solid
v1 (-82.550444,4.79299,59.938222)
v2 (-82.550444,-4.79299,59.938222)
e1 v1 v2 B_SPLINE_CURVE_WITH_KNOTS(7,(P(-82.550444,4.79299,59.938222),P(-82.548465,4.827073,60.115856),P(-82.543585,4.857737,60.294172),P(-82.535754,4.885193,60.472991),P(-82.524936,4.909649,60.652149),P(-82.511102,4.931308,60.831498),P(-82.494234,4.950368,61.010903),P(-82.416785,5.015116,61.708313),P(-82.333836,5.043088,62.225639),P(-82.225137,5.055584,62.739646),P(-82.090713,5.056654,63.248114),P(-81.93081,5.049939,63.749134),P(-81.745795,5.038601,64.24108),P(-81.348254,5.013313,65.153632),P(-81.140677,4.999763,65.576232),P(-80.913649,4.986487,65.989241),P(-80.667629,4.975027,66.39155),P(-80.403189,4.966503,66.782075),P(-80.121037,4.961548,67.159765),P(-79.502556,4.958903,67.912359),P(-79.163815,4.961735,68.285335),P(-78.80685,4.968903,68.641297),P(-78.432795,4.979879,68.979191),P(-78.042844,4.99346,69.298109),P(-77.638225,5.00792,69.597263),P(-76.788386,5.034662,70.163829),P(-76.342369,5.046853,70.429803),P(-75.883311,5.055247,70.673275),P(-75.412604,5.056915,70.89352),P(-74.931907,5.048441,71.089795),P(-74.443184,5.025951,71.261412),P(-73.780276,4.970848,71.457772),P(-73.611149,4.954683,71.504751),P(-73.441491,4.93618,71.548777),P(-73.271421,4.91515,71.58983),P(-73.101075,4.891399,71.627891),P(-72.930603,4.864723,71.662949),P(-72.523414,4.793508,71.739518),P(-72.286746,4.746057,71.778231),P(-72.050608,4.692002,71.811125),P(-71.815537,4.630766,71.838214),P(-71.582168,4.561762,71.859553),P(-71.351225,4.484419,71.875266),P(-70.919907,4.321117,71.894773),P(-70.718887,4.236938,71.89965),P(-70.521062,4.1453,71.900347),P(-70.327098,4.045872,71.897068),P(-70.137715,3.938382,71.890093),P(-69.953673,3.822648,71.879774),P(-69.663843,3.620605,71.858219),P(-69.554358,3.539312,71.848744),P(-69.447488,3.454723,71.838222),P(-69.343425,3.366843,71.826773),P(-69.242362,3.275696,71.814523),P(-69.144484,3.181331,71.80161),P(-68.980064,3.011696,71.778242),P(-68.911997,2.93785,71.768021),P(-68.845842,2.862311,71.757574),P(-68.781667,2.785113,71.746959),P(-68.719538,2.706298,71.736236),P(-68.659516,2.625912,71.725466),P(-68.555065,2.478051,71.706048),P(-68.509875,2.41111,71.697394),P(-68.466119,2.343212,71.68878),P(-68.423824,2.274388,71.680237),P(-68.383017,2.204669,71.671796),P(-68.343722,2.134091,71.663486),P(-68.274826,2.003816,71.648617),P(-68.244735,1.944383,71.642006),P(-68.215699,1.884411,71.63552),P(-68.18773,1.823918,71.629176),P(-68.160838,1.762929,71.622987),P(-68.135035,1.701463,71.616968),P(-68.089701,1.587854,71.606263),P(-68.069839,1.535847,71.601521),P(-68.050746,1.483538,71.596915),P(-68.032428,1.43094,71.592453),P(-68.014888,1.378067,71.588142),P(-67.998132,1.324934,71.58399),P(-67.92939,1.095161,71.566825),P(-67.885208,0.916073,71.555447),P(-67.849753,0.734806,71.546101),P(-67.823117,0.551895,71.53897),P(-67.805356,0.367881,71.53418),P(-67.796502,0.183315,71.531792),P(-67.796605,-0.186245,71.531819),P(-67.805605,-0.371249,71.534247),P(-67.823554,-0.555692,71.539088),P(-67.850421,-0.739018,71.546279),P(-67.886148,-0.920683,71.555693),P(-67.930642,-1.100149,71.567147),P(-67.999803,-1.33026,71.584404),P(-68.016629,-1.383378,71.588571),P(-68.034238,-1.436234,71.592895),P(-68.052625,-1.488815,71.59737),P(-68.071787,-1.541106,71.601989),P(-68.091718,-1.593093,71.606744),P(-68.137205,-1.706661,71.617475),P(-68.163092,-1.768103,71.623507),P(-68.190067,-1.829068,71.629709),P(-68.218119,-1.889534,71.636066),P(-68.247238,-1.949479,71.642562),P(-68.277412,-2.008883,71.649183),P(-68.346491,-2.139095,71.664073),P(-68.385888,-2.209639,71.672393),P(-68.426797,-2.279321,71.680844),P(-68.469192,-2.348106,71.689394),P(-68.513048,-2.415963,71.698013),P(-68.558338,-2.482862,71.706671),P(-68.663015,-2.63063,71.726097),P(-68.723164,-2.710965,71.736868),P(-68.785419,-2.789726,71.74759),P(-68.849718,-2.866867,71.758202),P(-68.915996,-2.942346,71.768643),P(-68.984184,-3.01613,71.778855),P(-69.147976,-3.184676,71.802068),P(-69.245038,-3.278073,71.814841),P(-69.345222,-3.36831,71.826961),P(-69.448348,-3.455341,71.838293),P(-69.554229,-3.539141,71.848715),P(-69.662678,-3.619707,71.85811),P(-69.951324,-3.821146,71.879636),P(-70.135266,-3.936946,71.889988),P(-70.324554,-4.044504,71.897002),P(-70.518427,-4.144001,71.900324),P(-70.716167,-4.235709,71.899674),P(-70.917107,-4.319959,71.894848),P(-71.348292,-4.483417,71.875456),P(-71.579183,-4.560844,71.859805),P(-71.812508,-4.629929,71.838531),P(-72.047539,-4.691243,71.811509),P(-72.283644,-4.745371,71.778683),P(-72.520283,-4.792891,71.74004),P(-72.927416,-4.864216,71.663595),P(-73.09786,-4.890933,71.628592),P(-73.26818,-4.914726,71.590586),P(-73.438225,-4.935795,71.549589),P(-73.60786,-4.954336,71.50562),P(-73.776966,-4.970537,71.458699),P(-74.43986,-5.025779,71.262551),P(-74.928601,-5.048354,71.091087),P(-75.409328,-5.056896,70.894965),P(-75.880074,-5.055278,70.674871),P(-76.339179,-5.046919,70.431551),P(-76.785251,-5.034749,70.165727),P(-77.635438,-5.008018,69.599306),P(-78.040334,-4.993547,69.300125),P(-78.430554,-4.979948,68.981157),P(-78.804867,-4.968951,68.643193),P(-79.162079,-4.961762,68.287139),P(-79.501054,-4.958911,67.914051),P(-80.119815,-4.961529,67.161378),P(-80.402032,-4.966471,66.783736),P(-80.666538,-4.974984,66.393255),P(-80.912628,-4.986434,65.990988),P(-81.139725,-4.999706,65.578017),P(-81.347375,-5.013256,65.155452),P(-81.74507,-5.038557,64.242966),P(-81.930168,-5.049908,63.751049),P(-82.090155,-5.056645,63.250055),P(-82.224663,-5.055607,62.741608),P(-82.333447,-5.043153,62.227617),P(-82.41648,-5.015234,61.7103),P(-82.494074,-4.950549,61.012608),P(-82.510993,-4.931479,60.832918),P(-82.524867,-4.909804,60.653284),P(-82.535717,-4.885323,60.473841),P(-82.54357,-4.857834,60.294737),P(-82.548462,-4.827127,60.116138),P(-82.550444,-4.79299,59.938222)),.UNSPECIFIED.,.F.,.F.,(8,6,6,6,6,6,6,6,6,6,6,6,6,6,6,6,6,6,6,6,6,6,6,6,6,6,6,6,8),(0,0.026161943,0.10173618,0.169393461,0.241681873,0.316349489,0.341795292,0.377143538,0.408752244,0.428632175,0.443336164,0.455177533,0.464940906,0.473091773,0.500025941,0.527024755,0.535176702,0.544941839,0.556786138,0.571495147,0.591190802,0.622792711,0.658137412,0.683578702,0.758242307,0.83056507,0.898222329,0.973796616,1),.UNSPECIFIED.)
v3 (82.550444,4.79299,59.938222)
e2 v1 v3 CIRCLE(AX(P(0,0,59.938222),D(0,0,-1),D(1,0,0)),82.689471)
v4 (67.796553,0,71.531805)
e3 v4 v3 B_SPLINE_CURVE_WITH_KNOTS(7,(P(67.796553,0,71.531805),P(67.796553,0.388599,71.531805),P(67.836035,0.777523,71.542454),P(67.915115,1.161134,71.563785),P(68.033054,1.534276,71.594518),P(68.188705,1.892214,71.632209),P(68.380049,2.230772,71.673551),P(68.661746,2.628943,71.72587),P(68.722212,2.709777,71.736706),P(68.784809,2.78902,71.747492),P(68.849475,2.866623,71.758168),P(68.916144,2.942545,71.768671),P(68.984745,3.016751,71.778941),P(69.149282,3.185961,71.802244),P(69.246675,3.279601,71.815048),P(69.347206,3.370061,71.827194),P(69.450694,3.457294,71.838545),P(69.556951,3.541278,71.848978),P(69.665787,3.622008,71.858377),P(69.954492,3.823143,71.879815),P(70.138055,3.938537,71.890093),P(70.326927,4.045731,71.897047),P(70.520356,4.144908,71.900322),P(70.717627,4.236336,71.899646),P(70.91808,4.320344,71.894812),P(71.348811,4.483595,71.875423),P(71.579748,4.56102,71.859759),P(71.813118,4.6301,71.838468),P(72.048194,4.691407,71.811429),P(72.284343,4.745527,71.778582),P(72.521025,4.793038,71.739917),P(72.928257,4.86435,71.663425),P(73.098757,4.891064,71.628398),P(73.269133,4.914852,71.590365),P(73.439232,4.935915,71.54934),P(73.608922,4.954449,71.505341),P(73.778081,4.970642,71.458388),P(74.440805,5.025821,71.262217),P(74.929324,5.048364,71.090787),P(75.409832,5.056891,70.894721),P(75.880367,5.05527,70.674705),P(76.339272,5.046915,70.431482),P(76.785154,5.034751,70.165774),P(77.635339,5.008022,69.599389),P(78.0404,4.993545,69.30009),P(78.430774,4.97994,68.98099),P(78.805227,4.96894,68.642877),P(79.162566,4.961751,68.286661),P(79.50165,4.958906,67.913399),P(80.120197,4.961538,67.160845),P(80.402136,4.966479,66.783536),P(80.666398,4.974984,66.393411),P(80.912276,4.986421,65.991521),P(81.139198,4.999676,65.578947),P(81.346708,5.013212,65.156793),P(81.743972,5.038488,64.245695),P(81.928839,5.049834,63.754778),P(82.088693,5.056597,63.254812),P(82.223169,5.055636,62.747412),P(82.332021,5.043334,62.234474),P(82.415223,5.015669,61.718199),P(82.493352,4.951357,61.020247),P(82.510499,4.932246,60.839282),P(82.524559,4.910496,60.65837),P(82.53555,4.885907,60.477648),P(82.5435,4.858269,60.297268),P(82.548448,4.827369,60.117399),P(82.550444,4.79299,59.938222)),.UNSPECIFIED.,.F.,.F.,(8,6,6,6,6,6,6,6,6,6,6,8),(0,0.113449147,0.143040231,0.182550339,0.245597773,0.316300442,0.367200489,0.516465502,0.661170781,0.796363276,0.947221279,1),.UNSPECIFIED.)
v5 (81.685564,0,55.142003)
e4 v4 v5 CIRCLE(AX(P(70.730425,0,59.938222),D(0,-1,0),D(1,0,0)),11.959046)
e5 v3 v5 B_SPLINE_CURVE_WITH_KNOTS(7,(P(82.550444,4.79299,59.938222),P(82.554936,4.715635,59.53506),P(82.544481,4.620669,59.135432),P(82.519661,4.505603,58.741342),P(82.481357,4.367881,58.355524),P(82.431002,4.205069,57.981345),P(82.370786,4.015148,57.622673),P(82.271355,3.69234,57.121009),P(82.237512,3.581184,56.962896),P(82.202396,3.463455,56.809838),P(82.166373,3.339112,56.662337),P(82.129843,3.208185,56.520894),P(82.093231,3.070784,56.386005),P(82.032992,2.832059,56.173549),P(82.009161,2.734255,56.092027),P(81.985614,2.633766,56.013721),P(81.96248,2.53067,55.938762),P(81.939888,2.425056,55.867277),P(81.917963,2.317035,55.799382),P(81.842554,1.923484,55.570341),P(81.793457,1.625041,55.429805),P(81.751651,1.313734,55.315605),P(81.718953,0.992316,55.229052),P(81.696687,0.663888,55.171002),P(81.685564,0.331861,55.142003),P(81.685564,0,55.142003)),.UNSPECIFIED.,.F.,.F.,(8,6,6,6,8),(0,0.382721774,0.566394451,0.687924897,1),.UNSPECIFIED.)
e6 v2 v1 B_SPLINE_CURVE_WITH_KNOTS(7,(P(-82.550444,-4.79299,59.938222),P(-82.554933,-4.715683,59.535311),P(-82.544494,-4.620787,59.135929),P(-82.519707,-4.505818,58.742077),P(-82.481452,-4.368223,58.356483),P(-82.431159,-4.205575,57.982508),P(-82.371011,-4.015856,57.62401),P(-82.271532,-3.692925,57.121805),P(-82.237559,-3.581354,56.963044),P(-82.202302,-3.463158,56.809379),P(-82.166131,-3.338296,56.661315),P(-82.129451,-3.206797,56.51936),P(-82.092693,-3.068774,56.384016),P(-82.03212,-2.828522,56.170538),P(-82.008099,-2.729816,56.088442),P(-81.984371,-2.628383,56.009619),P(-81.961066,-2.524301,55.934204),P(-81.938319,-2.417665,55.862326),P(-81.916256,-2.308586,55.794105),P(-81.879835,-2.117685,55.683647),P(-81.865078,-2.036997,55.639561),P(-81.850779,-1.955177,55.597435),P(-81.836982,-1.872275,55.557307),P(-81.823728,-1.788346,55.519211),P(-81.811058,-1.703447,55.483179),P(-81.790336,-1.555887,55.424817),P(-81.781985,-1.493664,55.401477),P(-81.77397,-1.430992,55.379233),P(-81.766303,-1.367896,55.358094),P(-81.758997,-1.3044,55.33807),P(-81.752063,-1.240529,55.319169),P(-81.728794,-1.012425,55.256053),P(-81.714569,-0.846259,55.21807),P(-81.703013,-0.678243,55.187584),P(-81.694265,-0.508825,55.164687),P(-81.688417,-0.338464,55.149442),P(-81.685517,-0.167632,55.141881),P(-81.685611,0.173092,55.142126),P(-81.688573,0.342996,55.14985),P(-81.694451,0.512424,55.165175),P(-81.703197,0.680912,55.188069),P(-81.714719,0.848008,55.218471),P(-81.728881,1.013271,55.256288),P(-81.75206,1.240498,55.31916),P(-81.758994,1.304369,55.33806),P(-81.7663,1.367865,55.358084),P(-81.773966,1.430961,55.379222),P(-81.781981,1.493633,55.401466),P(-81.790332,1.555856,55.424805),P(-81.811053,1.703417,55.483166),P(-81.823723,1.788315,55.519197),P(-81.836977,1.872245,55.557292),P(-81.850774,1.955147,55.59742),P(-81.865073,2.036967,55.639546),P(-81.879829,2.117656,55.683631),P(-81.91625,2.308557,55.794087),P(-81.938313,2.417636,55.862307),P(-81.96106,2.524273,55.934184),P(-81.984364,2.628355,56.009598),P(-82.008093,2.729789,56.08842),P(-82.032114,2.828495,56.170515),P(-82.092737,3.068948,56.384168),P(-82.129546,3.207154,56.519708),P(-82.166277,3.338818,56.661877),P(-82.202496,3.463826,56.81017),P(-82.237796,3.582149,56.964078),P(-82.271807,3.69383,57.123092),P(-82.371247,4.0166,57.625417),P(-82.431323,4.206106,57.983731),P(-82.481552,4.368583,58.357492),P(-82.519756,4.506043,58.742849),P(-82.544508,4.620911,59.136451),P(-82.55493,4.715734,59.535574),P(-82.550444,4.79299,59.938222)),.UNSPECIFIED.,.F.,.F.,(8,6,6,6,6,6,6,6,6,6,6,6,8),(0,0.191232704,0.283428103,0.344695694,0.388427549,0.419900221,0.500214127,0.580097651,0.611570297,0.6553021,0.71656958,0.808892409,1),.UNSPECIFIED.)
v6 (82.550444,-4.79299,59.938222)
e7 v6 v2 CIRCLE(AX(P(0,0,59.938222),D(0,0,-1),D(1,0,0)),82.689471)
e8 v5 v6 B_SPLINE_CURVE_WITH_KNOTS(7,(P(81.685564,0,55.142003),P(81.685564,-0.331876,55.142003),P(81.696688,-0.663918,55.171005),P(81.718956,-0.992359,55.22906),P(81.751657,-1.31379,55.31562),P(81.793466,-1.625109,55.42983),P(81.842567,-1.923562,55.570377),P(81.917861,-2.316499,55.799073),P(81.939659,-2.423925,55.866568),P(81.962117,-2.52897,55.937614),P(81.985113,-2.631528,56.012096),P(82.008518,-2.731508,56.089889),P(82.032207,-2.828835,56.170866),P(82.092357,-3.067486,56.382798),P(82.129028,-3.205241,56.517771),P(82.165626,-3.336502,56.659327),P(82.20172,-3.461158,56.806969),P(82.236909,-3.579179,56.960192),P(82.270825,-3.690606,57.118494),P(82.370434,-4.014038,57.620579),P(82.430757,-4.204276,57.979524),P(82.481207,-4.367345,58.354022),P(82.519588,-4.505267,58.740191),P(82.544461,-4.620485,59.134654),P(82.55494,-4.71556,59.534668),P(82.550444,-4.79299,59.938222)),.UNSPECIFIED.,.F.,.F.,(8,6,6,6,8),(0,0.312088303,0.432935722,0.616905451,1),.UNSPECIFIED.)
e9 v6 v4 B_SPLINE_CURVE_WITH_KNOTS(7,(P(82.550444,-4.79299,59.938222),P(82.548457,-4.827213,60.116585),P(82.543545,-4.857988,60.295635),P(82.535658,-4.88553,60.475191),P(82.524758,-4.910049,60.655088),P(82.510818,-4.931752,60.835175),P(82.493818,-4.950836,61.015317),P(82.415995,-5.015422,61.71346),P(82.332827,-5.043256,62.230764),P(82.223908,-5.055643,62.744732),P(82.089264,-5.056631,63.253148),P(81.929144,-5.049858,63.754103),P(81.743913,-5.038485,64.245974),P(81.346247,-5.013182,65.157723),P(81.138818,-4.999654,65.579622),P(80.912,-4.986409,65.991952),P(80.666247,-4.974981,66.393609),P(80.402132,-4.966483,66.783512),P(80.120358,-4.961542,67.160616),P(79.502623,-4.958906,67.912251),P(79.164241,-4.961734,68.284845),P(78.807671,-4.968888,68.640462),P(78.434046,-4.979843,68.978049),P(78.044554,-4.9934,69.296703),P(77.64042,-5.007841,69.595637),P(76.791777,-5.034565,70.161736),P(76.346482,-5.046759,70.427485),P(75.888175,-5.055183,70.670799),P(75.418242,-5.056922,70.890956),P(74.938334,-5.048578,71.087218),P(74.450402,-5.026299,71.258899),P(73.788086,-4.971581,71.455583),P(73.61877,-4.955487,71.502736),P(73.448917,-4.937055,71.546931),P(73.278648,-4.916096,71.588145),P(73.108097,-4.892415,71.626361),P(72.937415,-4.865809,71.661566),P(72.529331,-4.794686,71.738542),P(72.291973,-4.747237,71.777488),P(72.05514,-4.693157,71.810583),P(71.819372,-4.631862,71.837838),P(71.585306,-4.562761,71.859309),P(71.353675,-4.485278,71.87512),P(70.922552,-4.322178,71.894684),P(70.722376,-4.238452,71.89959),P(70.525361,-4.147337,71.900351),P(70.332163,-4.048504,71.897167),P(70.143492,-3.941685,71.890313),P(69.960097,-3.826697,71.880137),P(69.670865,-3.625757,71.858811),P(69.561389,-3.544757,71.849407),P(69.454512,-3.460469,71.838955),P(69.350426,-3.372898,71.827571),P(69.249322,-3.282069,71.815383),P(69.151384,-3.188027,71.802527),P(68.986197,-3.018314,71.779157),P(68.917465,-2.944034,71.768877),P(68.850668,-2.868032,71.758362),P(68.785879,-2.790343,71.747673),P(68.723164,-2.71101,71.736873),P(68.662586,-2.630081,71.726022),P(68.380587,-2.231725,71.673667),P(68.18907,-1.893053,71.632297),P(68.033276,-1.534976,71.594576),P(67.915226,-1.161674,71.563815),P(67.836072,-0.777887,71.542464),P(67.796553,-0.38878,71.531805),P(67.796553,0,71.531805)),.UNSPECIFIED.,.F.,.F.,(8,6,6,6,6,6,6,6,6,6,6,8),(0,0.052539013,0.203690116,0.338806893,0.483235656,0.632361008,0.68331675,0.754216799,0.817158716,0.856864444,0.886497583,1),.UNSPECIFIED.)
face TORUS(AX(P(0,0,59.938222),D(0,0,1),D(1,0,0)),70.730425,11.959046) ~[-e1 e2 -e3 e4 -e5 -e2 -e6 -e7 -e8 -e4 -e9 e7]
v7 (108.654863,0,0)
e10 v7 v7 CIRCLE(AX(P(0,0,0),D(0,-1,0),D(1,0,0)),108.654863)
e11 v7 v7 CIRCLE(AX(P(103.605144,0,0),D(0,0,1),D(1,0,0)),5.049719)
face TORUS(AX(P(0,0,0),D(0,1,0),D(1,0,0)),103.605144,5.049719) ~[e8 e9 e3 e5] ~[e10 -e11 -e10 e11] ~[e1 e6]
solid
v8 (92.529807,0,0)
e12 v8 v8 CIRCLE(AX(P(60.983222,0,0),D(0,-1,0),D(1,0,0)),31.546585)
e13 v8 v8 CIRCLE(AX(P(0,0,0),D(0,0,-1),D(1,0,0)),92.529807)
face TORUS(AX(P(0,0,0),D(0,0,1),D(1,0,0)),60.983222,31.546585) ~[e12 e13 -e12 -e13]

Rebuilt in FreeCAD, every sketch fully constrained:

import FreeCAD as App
import Part
import Sketcher
Q = App.Units.Quantity

doc = App.newDocument("Part")
body = doc.addObject("PartDesign::Body", "Body")

# Sketch on XZ plane
sketch1 = body.newObject("Sketcher::SketchObject", "Sketch")
sketch1.AttachmentSupport = (doc.getObject("XZ_Plane"), [""])
sketch1.MapMode = "FlatFace"
sketch1.addGeometry(Part.Circle(App.Vector(60.983222, 0, 0), App.Vector(0, 0, 1), 31.546585), False)
sketch1.addConstraint([
    Sketcher.Constraint("PointOnObject", 0, 3, -1),
    Sketcher.Constraint("Diameter", 0, Q("63.09317 mm")),
    Sketcher.Constraint("DistanceX", -1, 1, 0, 3, Q("60.983222 mm")),
])
revolution = body.newObject("PartDesign::Revolution", "Revolution")
revolution.Profile = sketch1
revolution.ReferenceAxis = (sketch1, ["V_Axis"])
revolution.Angle = 360
body2 = doc.addObject("PartDesign::Body", "Body001")

# Sketch on XZ plane
sketch2 = body2.newObject("Sketcher::SketchObject", "Sketch001")
sketch2.AttachmentSupport = (doc.getObject("XZ_Plane001"), [""])
sketch2.MapMode = "FlatFace"
sketch2.addGeometry(Part.Circle(App.Vector(70.730425, 59.938222, 0), App.Vector(0, 0, 1), 11.959046), False)
sketch2.addConstraint([
    Sketcher.Constraint("Diameter", 0, Q("23.918092 mm")),
    Sketcher.Constraint("DistanceX", -1, 1, 0, 3, Q("70.730425 mm")),
    Sketcher.Constraint("DistanceY", -1, 1, 0, 3, Q("59.938222 mm")),
])
revolution2 = body2.newObject("PartDesign::Revolution", "Revolution001")
revolution2.Profile = sketch2
revolution2.ReferenceAxis = (sketch2, ["V_Axis"])
revolution2.Angle = 360

# Sketch on XY plane
sketch3 = body2.newObject("Sketcher::SketchObject", "Sketch002")
sketch3.AttachmentSupport = (doc.getObject("XY_Plane001"), [""])
sketch3.MapMode = "FlatFace"
sketch3.addGeometry(Part.Circle(App.Vector(103.605144, 0, 0), App.Vector(0, 0, 1), 5.049719), False)
sketch3.addConstraint([
    Sketcher.Constraint("PointOnObject", 0, 3, -1),
    Sketcher.Constraint("Diameter", 0, Q("10.099438 mm")),
    Sketcher.Constraint("DistanceX", -1, 1, 0, 3, Q("103.605144 mm")),
])
revolution3 = body2.newObject("PartDesign::Revolution", "Revolution002")
revolution3.Profile = sketch3
revolution3.ReferenceAxis = (sketch3, ["V_Axis"])
revolution3.Angle = 360

doc.recompute()
